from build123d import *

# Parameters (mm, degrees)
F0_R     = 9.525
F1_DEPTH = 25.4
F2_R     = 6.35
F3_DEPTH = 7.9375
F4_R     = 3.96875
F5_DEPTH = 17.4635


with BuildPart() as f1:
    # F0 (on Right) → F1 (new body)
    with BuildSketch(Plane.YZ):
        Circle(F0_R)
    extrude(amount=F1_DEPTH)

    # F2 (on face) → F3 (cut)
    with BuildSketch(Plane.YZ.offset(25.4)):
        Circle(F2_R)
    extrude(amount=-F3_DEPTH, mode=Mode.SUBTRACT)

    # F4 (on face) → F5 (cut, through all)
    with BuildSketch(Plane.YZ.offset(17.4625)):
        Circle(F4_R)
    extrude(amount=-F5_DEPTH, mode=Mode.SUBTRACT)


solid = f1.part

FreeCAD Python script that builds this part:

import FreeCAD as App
import Part
import Sketcher
from FreeCAD import Vector
Q = App.Units.Quantity

doc = App.newDocument("Part")
body = doc.addObject("PartDesign::Body", "Body")

# Sketch on YZ plane
sketch1 = body.newObject("Sketcher::SketchObject", "Sketch")
sketch1.AttachmentSupport = (doc.getObject("YZ_Plane"), [""])
sketch1.MapMode = "FlatFace"
sketch1.addGeometry(Part.Circle(Vector(0, 0, 0), Vector(0, 0, 1), 10), False)
sketch1.addConstraint([
    Sketcher.Constraint("Coincident", 0, 3, -1, 1),
    Sketcher.Constraint("Diameter", 0, Q("0.75 in")),
])
pad1 = body.newObject("PartDesign::Pad", "Pad")
pad1.Profile = sketch1
pad1.Length = Q("1 in")

# Sketch on YZ plane
sketch2 = body.newObject("Sketcher::SketchObject", "Sketch001")
sketch2.AttachmentSupport = (doc.getObject("YZ_Plane"), [""])
sketch2.MapMode = "FlatFace"
sketch2.AttachmentOffset = App.Placement(Vector(0, 0, 1 * 25.4), App.Rotation())
sketch2.addGeometry(Part.Circle(Vector(0, 0, 0), Vector(0, 0, 1), 6), False)
sketch2.addConstraint([
    Sketcher.Constraint("Coincident", 0, 3, -1, 1),
    Sketcher.Constraint("Diameter", 0, Q("0.5 in")),
])
pocket1 = body.newObject("PartDesign::Pocket", "Pocket")
pocket1.Profile = sketch2
pocket1.Length = Q("0.3125 in")

# Sketch on YZ plane
sketch3 = body.newObject("Sketcher::SketchObject", "Sketch002")
sketch3.AttachmentSupport = (doc.getObject("YZ_Plane"), [""])
sketch3.MapMode = "FlatFace"
sketch3.AttachmentOffset = App.Placement(Vector(0, 0, 0.6875 * 25.4), App.Rotation())
sketch3.addGeometry(Part.Circle(Vector(0, 0, 0), Vector(0, 0, 1), 4), False)
sketch3.addConstraint([
    Sketcher.Constraint("Coincident", 0, 3, -1, 1),
    Sketcher.Constraint("Diameter", 0, Q("0.3125 in")),
])
pocket2 = body.newObject("PartDesign::Pocket", "Pocket001")
pocket2.Profile = sketch3
pocket2.Type = "ThroughAll"

doc.recompute()
